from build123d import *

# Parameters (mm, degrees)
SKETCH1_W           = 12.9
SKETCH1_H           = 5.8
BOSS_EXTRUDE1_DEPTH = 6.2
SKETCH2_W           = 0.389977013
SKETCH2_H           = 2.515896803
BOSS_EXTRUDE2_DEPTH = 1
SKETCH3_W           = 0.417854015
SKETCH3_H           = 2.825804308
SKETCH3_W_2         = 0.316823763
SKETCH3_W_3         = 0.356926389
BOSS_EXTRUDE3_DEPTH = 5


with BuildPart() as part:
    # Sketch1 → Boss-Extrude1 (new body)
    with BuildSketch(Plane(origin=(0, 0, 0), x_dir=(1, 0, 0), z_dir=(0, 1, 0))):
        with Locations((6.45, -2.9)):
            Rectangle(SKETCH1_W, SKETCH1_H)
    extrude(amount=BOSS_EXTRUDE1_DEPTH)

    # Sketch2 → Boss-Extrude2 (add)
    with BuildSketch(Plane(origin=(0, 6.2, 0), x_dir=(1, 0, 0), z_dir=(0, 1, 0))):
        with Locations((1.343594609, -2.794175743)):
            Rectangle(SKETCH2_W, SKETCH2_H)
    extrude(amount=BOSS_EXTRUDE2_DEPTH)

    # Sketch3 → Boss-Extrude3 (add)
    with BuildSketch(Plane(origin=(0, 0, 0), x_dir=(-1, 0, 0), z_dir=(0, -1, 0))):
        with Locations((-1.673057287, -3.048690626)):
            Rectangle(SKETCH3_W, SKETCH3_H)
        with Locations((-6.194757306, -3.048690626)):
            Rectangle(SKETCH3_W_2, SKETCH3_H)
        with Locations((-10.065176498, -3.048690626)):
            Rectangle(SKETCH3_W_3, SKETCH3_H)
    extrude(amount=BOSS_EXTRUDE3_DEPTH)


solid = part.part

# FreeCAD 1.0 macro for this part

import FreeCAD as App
import Part
import Sketcher
from FreeCAD import Vector
Q = App.Units.Quantity

doc = App.newDocument("Part")
body = doc.addObject("PartDesign::Body", "Body")

# Sketch on XZ plane
sketch1 = body.newObject("Sketcher::SketchObject", "Sketch")
sketch1.AttachmentSupport = (doc.getObject("XZ_Plane"), [""])
sketch1.MapMode = "FlatFace"
sketch1.addGeometry([
    Part.LineSegment(Vector(0, 0, 0), Vector(0, 5.8, 0)),
    Part.LineSegment(Vector(0, 5.8, 0), Vector(12.9, 5.8, 0)),
    Part.LineSegment(Vector(12.9, 5.8, 0), Vector(12.9, 0, 0)),
    Part.LineSegment(Vector(12.9, 0, 0), Vector(0, 0, 0)),
], False)
sketch1.addConstraint([
    Sketcher.Constraint("Coincident", 0, 2, 1, 1),
    Sketcher.Constraint("Coincident", 1, 2, 2, 1),
    Sketcher.Constraint("Coincident", 2, 2, 3, 1),
    Sketcher.Constraint("Coincident", 3, 2, 0, 1),
    Sketcher.Constraint("Vertical", 0),
    Sketcher.Constraint("Horizontal", 1),
    Sketcher.Constraint("Vertical", 2),
    Sketcher.Constraint("Horizontal", 3),
    Sketcher.Constraint("Coincident", 3, 2, -1, 1),
    Sketcher.Constraint("DistanceX", 1, 1, 1, 2, Q("12.9 mm")),
    Sketcher.Constraint("DistanceY", 0, 1, 0, 2, Q("5.8 mm")),
])
pad1 = body.newObject("PartDesign::Pad", "Pad")
pad1.Profile = sketch1
pad1.Length = 6.2
pad1.Reversed = True

# Sketch on XZ plane
sketch2 = body.newObject("Sketcher::SketchObject", "Sketch001")
sketch2.AttachmentSupport = (doc.getObject("XZ_Plane"), [""])
sketch2.MapMode = "FlatFace"
sketch2.AttachmentOffset = App.Placement(Vector(0, 0, -6.2), App.Rotation())
sketch2.addGeometry([
    Part.LineSegment(Vector(1.148606, 1.536227, 0), Vector(1.148606, 4.052124, 0)),
    Part.LineSegment(Vector(1.148606, 4.052124, 0), Vector(1.538583, 4.052124, 0)),
    Part.LineSegment(Vector(1.538583, 4.052124, 0), Vector(1.538583, 1.536227, 0)),
    Part.LineSegment(Vector(1.538583, 1.536227, 0), Vector(1.148606, 1.536227, 0)),
], False)
sketch2.addConstraint([
    Sketcher.Constraint("Coincident", 0, 2, 1, 1),
    Sketcher.Constraint("Coincident", 1, 2, 2, 1),
    Sketcher.Constraint("Coincident", 2, 2, 3, 1),
    Sketcher.Constraint("Coincident", 3, 2, 0, 1),
    Sketcher.Constraint("Vertical", 0),
    Sketcher.Constraint("Horizontal", 1),
    Sketcher.Constraint("Vertical", 2),
    Sketcher.Constraint("Horizontal", 3),
    Sketcher.Constraint("DistanceX", 1, 1, 1, 2, Q("0.389977 mm")),
    Sketcher.Constraint("DistanceY", 0, 1, 0, 2, Q("2.515897 mm")),
    Sketcher.Constraint("DistanceX", -1, 1, 0, 2, Q("1.148606 mm")),
    Sketcher.Constraint("DistanceY", -1, 1, 0, 2, Q("4.052124 mm")),
])
pad2 = body.newObject("PartDesign::Pad", "Pad001")
pad2.Profile = sketch2
pad2.Length = 1
pad2.Reversed = True

# Sketch on XZ plane
sketch3 = body.newObject("Sketcher::SketchObject", "Sketch002")
sketch3.AttachmentSupport = (doc.getObject("XZ_Plane"), [""])
sketch3.MapMode = "FlatFace"
sketch3.addGeometry([
    Part.LineSegment(Vector(1.881984, 1.635788, 0), Vector(1.881984, 4.461593, 0)),  # 0
    Part.LineSegment(Vector(1.881984, 4.461593, 0), Vector(1.46413, 4.461593, 0)),  # 1
    Part.LineSegment(Vector(1.46413, 4.461593, 0), Vector(1.46413, 1.635788, 0)),  # 2
    Part.LineSegment(Vector(1.46413, 1.635788, 0), Vector(1.881984, 1.635788, 0)),  # 3
    Part.LineSegment(Vector(6.353169, 1.635788, 0), Vector(6.353169, 4.461593, 0)),  # 4
    Part.LineSegment(Vector(6.353169, 4.461593, 0), Vector(6.036345, 4.461593, 0)),  # 5
    Part.LineSegment(Vector(6.036345, 4.461593, 0), Vector(6.036345, 1.635788, 0)),  # 6
    Part.LineSegment(Vector(6.036345, 1.635788, 0), Vector(6.353169, 1.635788, 0)),  # 7
    Part.LineSegment(Vector(10.24364, 1.635788, 0), Vector(10.24364, 4.461593, 0)),  # 8
    Part.LineSegment(Vector(10.24364, 4.461593, 0), Vector(9.886713, 4.461593, 0)),  # 9
    Part.LineSegment(Vector(9.886713, 4.461593, 0), Vector(9.886713, 1.635788, 0)),  # 10
    Part.LineSegment(Vector(9.886713, 1.635788, 0), Vector(10.24364, 1.635788, 0)),  # 11
], False)
sketch3.addConstraint([
    Sketcher.Constraint("Coincident", 0, 2, 1, 1),
    Sketcher.Constraint("Coincident", 1, 2, 2, 1),
    Sketcher.Constraint("Coincident", 2, 2, 3, 1),
    Sketcher.Constraint("Coincident", 3, 2, 0, 1),
    Sketcher.Constraint("Coincident", 4, 2, 5, 1),
    Sketcher.Constraint("Coincident", 5, 2, 6, 1),
    Sketcher.Constraint("Coincident", 6, 2, 7, 1),
    Sketcher.Constraint("Coincident", 7, 2, 4, 1),
    Sketcher.Constraint("Coincident", 8, 2, 9, 1),
    Sketcher.Constraint("Coincident", 9, 2, 10, 1),
    Sketcher.Constraint("Coincident", 10, 2, 11, 1),
    Sketcher.Constraint("Coincident", 11, 2, 8, 1),
    Sketcher.Constraint("Vertical", 0),
    Sketcher.Constraint("Horizontal", 1),
    Sketcher.Constraint("Vertical", 2),
    Sketcher.Constraint("Horizontal", 3),
    Sketcher.Constraint("Vertical", 4),
    Sketcher.Constraint("Horizontal", 5),
    Sketcher.Constraint("Vertical", 6),
    Sketcher.Constraint("Horizontal", 7),
    Sketcher.Constraint("Vertical", 8),
    Sketcher.Constraint("Horizontal", 9),
    Sketcher.Constraint("Vertical", 10),
    Sketcher.Constraint("Horizontal", 11),
    Sketcher.Constraint("Horizontal", 1, 2, 4, 2),
    Sketcher.Constraint("Horizontal", 3, 2, 6, 2),
    Sketcher.Constraint("Horizontal", 5, 2, 8, 2),
    Sketcher.Constraint("Horizontal", 7, 2, 10, 2),
    Sketcher.Constraint("DistanceX", 1, 2, 1, 1, Q("0.417854 mm")),
    Sketcher.Constraint("DistanceX", 5, 2, 5, 1, Q("0.316824 mm")),
    Sketcher.Constraint("DistanceX", 9, 2, 9, 1, Q("0.356926 mm")),
    Sketcher.Constraint("DistanceY", 0, 1, 0, 2, Q("2.825804 mm")),
    Sketcher.Constraint("DistanceX", -1, 1, 1, 2, Q("1.46413 mm")),
    Sketcher.Constraint("DistanceY", -1, 1, 2, 2, Q("1.635788 mm")),
    Sketcher.Constraint("DistanceX", -1, 1, 4, 2, Q("6.353169 mm")),
    Sketcher.Constraint("DistanceX", -1, 1, 8, 2, Q("10.24364 mm")),
])
pad3 = body.newObject("PartDesign::Pad", "Pad002")
pad3.Profile = sketch3
pad3.Length = 5

doc.recompute()
